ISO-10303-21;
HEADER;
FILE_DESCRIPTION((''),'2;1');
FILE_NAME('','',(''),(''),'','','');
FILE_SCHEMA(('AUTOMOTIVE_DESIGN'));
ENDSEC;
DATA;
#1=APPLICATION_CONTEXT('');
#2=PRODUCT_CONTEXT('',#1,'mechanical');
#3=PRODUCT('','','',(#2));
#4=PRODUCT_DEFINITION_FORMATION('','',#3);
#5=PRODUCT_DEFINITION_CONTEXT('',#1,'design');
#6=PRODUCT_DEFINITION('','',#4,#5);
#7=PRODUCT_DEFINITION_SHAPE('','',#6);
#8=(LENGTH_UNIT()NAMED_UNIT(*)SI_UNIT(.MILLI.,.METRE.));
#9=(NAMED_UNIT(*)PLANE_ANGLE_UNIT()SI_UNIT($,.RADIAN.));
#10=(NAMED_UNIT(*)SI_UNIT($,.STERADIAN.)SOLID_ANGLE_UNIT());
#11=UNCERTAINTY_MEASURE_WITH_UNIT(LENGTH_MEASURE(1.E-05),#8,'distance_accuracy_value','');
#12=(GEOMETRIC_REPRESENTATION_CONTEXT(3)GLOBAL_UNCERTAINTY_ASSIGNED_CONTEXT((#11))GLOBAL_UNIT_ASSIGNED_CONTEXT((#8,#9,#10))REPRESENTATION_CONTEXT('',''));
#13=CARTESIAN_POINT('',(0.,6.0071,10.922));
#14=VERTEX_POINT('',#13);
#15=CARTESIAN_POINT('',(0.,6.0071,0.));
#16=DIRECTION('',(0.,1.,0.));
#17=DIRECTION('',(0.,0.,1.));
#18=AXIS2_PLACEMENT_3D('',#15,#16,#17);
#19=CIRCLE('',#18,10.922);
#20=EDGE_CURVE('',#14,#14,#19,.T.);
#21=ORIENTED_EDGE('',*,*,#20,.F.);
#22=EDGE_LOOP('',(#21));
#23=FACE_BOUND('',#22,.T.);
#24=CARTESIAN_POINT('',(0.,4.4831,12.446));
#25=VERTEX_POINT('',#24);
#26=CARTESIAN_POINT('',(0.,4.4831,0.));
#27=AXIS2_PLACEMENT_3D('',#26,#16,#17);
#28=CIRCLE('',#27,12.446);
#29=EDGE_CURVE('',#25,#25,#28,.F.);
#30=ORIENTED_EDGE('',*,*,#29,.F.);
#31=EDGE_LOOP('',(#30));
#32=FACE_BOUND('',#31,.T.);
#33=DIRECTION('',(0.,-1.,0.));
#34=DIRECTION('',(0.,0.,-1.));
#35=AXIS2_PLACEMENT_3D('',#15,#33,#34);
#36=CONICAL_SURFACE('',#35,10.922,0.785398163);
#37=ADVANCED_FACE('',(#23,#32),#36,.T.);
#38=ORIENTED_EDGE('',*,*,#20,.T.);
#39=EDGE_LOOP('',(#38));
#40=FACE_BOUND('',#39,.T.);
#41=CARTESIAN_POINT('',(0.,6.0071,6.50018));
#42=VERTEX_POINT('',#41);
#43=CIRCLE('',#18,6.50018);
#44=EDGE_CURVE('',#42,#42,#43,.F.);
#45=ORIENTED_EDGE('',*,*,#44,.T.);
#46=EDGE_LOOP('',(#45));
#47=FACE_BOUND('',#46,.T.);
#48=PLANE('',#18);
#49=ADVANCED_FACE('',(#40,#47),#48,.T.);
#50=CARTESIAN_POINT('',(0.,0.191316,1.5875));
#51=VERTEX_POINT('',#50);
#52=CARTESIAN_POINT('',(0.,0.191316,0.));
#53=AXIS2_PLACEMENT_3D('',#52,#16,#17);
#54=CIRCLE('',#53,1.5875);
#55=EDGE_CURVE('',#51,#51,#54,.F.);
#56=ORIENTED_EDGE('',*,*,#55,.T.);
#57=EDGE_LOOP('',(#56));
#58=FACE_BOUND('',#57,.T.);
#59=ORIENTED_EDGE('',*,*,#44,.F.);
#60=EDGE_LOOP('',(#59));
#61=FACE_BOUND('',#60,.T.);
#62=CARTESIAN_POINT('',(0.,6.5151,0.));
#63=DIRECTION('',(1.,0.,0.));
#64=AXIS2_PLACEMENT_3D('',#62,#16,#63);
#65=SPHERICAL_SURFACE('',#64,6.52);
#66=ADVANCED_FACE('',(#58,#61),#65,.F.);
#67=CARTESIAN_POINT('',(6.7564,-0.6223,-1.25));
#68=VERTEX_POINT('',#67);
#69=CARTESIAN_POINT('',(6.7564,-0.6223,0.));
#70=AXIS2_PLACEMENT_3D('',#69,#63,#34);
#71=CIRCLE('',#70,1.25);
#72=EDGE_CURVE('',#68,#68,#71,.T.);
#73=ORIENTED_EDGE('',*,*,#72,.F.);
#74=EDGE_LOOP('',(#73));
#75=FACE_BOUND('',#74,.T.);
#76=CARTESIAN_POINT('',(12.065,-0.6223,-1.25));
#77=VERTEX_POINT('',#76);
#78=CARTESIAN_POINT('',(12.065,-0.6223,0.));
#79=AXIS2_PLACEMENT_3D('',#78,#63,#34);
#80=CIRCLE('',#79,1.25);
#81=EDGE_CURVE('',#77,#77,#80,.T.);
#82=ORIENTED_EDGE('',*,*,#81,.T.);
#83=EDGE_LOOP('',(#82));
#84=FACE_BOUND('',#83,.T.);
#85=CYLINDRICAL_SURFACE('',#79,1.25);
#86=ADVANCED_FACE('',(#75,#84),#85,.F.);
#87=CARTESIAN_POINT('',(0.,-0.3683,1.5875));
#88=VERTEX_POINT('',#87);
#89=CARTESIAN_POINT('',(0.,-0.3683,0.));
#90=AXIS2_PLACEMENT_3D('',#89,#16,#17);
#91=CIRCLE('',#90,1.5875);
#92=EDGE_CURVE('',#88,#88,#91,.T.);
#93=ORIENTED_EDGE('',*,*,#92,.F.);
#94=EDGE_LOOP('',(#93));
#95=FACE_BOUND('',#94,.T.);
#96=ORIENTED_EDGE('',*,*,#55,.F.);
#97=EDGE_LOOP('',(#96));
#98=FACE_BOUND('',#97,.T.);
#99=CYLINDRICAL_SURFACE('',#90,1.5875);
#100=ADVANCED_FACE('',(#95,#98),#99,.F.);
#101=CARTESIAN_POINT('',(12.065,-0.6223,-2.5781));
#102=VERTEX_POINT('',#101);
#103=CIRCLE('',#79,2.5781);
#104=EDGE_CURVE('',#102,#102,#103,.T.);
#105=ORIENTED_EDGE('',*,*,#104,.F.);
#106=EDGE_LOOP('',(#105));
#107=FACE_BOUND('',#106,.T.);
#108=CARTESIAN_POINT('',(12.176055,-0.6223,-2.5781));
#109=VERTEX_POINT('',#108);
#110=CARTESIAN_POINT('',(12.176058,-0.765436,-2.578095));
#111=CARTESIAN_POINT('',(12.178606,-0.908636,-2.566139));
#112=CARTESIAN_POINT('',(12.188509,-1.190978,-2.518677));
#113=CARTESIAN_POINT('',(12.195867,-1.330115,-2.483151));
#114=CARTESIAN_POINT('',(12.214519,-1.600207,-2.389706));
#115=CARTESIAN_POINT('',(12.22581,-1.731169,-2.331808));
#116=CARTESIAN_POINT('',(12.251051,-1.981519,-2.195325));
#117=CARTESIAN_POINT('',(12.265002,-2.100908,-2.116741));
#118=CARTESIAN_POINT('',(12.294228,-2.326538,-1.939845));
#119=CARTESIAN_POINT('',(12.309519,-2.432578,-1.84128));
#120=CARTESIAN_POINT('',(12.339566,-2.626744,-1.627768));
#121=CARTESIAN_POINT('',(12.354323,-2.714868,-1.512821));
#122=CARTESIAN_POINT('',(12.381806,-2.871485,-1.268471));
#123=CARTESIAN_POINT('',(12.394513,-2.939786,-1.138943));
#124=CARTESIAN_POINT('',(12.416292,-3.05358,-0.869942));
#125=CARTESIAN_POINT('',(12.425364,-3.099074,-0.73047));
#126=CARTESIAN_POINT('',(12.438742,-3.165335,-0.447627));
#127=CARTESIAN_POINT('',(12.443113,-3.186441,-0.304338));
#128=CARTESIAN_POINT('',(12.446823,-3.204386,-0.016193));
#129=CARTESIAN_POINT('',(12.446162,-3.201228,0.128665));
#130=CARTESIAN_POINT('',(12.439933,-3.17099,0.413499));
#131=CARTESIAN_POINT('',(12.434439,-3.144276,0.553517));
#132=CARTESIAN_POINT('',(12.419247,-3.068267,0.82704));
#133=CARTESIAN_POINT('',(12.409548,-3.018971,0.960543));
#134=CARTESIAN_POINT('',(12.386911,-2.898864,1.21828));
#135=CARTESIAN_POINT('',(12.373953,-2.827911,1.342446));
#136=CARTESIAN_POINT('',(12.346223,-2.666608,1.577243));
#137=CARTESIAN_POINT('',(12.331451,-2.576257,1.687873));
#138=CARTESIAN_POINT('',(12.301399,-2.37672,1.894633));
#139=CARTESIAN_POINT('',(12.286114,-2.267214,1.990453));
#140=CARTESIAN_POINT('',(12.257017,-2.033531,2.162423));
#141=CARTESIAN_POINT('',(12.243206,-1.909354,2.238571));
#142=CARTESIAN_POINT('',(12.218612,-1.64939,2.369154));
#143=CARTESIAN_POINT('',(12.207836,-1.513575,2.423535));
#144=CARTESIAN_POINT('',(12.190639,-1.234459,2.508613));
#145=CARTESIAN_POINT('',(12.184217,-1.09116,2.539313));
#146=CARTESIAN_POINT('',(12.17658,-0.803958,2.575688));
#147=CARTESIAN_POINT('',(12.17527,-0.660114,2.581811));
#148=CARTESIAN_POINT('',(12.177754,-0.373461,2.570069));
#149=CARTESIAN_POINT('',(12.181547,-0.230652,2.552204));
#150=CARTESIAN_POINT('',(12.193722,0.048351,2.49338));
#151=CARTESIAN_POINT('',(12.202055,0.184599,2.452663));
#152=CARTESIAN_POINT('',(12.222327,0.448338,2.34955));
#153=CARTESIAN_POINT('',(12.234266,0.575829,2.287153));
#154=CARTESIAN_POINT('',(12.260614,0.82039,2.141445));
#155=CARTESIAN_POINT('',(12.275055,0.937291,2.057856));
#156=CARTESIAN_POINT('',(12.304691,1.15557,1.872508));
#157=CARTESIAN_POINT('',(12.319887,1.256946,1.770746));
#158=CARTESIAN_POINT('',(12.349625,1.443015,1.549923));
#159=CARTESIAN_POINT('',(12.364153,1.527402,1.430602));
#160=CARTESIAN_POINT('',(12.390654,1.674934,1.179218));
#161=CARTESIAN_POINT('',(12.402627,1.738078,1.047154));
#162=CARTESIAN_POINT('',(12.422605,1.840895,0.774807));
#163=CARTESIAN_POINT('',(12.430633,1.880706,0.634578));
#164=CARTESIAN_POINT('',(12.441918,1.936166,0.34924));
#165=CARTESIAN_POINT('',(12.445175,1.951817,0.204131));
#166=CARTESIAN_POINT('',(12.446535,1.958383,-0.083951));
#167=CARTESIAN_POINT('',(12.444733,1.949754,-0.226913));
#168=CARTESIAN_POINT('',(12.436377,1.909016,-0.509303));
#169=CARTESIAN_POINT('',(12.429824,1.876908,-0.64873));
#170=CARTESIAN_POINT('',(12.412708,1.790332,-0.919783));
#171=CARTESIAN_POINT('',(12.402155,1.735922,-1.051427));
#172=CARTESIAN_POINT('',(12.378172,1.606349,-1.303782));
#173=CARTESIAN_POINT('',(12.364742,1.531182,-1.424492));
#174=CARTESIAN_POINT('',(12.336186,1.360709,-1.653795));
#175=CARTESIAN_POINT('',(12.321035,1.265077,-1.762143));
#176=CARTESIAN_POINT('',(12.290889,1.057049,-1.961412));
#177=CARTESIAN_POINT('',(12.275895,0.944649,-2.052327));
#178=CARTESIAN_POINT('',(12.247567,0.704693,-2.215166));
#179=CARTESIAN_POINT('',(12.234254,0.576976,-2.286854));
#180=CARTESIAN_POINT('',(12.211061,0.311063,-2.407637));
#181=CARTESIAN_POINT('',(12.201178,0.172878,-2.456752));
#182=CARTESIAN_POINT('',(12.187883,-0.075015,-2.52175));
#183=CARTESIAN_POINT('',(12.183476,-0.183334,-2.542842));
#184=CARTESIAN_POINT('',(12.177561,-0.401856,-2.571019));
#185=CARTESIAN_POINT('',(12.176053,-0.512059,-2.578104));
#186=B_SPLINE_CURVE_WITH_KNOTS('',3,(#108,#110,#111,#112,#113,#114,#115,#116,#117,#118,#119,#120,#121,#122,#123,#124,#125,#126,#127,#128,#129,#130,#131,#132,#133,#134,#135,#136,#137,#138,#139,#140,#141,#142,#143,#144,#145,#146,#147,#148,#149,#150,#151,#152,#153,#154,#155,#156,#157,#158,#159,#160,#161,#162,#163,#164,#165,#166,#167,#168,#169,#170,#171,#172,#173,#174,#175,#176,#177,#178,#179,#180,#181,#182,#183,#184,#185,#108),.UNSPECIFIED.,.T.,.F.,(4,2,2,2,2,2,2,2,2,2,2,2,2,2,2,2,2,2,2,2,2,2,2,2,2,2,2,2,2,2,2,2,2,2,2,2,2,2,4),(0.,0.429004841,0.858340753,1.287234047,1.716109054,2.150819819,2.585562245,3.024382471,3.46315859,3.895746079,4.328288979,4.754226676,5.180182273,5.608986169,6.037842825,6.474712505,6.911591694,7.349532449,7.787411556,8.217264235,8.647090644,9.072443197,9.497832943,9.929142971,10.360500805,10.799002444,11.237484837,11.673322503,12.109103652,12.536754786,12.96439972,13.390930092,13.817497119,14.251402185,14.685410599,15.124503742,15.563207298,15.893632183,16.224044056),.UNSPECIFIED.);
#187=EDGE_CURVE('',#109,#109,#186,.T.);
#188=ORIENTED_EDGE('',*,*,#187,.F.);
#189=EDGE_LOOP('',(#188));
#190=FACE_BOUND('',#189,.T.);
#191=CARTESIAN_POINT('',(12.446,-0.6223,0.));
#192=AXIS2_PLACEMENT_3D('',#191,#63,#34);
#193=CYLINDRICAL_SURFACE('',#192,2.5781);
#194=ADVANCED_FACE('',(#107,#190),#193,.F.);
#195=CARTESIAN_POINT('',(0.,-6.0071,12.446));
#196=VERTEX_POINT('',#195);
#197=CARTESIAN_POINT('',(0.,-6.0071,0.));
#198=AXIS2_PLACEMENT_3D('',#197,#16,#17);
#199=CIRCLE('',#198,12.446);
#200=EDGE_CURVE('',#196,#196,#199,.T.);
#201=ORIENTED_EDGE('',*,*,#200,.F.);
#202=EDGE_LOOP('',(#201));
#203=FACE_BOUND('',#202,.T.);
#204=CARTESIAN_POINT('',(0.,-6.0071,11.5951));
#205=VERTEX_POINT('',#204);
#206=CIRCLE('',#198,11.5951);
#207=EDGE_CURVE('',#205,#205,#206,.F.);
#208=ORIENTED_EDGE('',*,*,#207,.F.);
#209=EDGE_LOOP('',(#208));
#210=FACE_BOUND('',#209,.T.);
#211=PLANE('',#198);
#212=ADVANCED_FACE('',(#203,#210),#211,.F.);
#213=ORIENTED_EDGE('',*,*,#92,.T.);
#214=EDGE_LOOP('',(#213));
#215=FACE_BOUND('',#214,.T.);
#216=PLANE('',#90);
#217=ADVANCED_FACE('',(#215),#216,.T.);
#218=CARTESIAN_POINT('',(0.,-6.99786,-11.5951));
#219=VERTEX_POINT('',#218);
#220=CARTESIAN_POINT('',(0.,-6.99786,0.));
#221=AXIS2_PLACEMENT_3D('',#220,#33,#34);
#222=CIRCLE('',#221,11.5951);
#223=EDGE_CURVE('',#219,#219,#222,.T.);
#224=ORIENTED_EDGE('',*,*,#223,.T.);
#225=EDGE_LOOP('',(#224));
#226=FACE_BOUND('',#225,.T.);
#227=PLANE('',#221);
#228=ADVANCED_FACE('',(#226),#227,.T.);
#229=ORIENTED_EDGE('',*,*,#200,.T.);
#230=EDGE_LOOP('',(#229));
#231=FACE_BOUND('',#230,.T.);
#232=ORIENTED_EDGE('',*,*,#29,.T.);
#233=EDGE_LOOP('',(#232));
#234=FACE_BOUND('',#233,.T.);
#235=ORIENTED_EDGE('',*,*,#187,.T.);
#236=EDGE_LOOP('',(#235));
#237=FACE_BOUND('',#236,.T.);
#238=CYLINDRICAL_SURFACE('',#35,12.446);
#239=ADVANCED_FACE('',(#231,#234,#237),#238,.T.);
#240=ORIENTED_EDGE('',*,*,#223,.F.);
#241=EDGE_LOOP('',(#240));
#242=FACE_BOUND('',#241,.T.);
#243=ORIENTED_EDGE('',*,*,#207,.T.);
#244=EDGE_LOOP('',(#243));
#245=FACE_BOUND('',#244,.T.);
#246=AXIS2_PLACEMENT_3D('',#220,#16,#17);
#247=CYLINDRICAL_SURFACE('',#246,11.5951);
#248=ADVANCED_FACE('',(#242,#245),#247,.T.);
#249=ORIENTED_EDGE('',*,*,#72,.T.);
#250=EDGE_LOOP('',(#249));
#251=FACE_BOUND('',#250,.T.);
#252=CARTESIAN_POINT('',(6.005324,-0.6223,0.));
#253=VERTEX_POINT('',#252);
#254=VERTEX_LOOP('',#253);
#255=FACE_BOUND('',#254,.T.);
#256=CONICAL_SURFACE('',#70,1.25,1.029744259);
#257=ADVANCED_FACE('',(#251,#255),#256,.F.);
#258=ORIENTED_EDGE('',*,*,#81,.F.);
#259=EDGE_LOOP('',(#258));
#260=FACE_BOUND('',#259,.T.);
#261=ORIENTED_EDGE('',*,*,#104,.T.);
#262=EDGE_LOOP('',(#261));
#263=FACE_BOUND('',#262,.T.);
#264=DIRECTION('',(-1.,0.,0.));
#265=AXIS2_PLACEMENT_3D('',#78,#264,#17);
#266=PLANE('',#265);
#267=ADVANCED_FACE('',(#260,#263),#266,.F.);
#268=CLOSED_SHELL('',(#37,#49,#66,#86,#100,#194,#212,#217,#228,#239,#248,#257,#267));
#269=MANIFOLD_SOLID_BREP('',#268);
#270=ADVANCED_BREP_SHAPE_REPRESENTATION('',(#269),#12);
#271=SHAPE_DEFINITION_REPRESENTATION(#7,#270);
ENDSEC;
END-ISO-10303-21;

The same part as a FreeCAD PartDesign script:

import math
import FreeCAD as App
import Part
import Sketcher

V = App.Vector
Q = App.Units.Quantity


def edges_at(feature, points):
    """Names of the edges that pass closest to the given points."""
    edges = feature.Shape.Edges
    near = lambda p: min(range(len(edges)), key=lambda i: edges[i].distToShape(Part.Vertex(*p))[0])
    return sorted({f"Edge{near(p) + 1}" for p in points})

doc = App.newDocument("Part")
body = doc.addObject("PartDesign::Body", "Body")

# Sketch on XZ plane
sketch1 = body.newObject("Sketcher::SketchObject", "Sketch")
sketch1.AttachmentSupport = (doc.getObject("XZ_Plane"), [""])
sketch1.MapMode = "FlatFace"
sketch1.addGeometry(Part.Circle(V(0, 0, 0), V(0, 0, 1), 12), False)
sketch1.addConstraint([
    Sketcher.Constraint("Coincident", 0, 3, -1, 1),
    Sketcher.Constraint("Diameter", 0, Q("0.98 in")),
])
pad1 = body.newObject("PartDesign::Pad", "Pad")
pad1.Profile = sketch1
pad1.Length = Q("0.473 in")
pad1.Midplane = True
doc.recompute()

chamfer = body.newObject("PartDesign::Chamfer", "Chamfer")
chamfer.Base = (pad1, edges_at(pad1, [(0, 6.007, -12.446)]))
chamfer.Size = Q("0.06 in")

# Sketch on XZ plane
sketch2 = body.newObject("Sketcher::SketchObject", "Sketch001")
sketch2.AttachmentSupport = (doc.getObject("XZ_Plane"), [""])
sketch2.MapMode = "FlatFace"
sketch2.AttachmentOffset = App.Placement(V(0, 0, 0.2365 * 25.4), App.Rotation())
sketch2.addGeometry(Part.Circle(V(0, 0, 0), V(0, 0, 1), 12), False)
sketch2.addConstraint([
    Sketcher.Constraint("Coincident", 0, 3, -1, 1),
    Sketcher.Constraint("Diameter", 0, Q("0.913 in")),
])
pad2 = body.newObject("PartDesign::Pad", "Pad001")
pad2.Profile = sketch2
pad2.Length = 0.99076

# Sketch on XZ plane
sketch3 = body.newObject("Sketcher::SketchObject", "Sketch002")
sketch3.AttachmentSupport = (doc.getObject("XZ_Plane"), [""])
sketch3.MapMode = "FlatFace"
sketch3.AttachmentOffset = App.Placement(V(0, 0, -0.2365 * 25.4), App.Rotation())
sketch3.addGeometry(Part.Circle(V(0, 0, 0), V(0, 0, 1), 1.6), False)
sketch3.addConstraint([
    Sketcher.Constraint("Coincident", 0, 3, -1, 1),
    Sketcher.Constraint("Diameter", 0, Q("0.125 in")),
])
pocket1 = body.newObject("PartDesign::Pocket", "Pocket")
pocket1.Profile = sketch3
pocket1.Length = Q("0.251 in")
pocket1.Reversed = True

# Sketch on XY plane
sketch4 = body.newObject("Sketcher::SketchObject", "Sketch003")
sketch4.AttachmentSupport = (doc.getObject("XY_Plane"), [""])
sketch4.MapMode = "FlatFace"
sketch4.addGeometry([
    Part.LineSegment(V(0, 13, 0), V(0, 0, 0)),
    Part.ArcOfCircle(Part.Circle(V(0, 7, 0), V(0, 0, 1), 7), math.radians(-90), math.radians(90)),
], False)
sketch4.addConstraint([
    Sketcher.Constraint("Coincident", 0, 1, 1, 2),
    Sketcher.Constraint("Coincident", 1, 1, 0, 2),
    Sketcher.Constraint("Vertical", 0),
    Sketcher.Constraint("PointOnObject", 1, 3, -2),
    Sketcher.Constraint("PointOnObject", 0, 1, -2),
    Sketcher.Constraint("Radius", 1, Q("6.52 mm")),
    Sketcher.Constraint("DistanceY", -1, 1, 1, 3, Q("0.2565 in")),
])
groove = body.newObject("PartDesign::Groove", "Groove")
groove.Profile = sketch4
groove.ReferenceAxis = (sketch4, ["V_Axis"])
groove.Angle = 360

# Sketch on YZ plane
sketch5 = body.newObject("Sketcher::SketchObject", "Sketch004")
sketch5.AttachmentSupport = (doc.getObject("YZ_Plane"), [""])
sketch5.MapMode = "FlatFace"
sketch5.AttachmentOffset = App.Placement(V(0, 0, 0.49 * 25.4), App.Rotation())
sketch5.addGeometry(Part.Circle(V(-0.6, 0, 0), V(0, 0, 1), 2.6), False)
sketch5.addConstraint([
    Sketcher.Constraint("PointOnObject", 0, 3, -1),
    Sketcher.Constraint("Diameter", 0, Q("0.203 in")),
    Sketcher.Constraint("DistanceX", 0, 3, -1, 1, Q("0.0245 in")),
])
doc.recompute()
hole = body.newObject("PartDesign::Hole", "Hole")
hole.Profile = sketch5
hole.ThreadType = "None"
hole.Diameter = Q("0.203 in")
hole.DepthType = "Dimension"
hole.Depth = Q("0.015 in")
hole.DrillPoint = "Flat"

# Sketch on YZ plane
sketch6 = body.newObject("Sketcher::SketchObject", "Sketch005")
sketch6.AttachmentSupport = (doc.getObject("YZ_Plane"), [""])
sketch6.MapMode = "FlatFace"
sketch6.AttachmentOffset = App.Placement(V(0, 0, 0.475 * 25.4), App.Rotation())
sketch6.addGeometry(Part.Circle(V(-0.6, 0, 0), V(0, 0, 1), 1.2), False)
sketch6.addConstraint([
    Sketcher.Constraint("PointOnObject", 0, 3, -1),
    Sketcher.Constraint("Diameter", 0, Q("2.5 mm")),
    Sketcher.Constraint("DistanceX", 0, 3, -1, 1, Q("0.0245 in")),
])
doc.recompute()
hole2 = body.newObject("PartDesign::Hole", "Hole001")
hole2.Profile = sketch6
hole2.ThreadType = "None"
hole2.Diameter = 2.5
hole2.DepthType = "Dimension"
hole2.Depth = Q("0.209 in")
hole2.DrillPoint = "Angled"
hole2.DrillPointAngle = 118

doc.recompute()
